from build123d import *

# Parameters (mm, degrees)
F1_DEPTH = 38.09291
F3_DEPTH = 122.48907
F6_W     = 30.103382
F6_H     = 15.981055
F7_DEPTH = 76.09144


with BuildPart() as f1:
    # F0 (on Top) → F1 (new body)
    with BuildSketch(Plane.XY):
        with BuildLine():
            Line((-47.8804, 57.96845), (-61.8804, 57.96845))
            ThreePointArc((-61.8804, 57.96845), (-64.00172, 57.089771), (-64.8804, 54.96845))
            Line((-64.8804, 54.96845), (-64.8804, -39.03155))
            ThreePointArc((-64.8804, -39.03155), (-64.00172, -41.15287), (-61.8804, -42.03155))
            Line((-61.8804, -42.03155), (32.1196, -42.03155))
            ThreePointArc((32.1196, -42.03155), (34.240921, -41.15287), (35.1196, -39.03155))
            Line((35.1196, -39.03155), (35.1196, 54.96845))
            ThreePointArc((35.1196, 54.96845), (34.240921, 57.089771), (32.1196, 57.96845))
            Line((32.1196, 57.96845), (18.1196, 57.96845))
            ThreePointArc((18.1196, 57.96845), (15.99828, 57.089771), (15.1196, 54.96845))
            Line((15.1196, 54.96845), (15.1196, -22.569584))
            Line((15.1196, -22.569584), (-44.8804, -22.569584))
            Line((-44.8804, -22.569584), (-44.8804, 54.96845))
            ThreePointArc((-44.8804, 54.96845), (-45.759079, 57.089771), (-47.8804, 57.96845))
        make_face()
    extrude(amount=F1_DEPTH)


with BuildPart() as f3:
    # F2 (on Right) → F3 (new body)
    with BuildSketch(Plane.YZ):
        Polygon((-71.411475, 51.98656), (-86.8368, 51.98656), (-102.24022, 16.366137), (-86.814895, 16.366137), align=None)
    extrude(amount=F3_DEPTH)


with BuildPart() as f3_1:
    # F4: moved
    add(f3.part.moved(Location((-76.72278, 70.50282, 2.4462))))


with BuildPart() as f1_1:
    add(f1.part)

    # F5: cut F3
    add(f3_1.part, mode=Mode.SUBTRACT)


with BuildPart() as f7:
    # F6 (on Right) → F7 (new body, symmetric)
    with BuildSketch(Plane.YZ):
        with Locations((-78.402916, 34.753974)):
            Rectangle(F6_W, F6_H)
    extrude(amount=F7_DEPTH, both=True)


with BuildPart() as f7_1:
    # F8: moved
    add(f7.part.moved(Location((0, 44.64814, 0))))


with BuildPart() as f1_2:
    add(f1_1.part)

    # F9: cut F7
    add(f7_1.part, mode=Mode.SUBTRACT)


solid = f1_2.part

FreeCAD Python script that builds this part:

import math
import FreeCAD as App
import Part
import Sketcher


def add_polygon(sketch, points):
    """Adds a closed chain of lines whose ends are joined by coincident constraints."""
    first, n = sketch.GeometryCount, len(points)
    for a, b in zip(points, points[1:] + points[:1]):
        sketch.addGeometry(Part.LineSegment(App.Vector(*a, 0), App.Vector(*b, 0)), False)
    for i in range(n):
        sketch.addConstraint(Sketcher.Constraint("Coincident", first + i, 2, first + (i + 1) % n, 1))

doc = App.newDocument("Part")
body = doc.addObject("PartDesign::Body", "Body")

sketch1 = body.newObject("Sketcher::SketchObject", "Sketch")
sketch1.AttachmentSupport = (doc.getObject("XY_Plane"), [""])
sketch1.MapMode = "FlatFace"
sketch1.addGeometry(Part.LineSegment(App.Vector(-47.9, 58, 0), App.Vector(-61.9, 58, 0)), False)
sketch1.addGeometry(Part.ArcOfCircle(Part.Circle(App.Vector(-61.9, 55, 0), App.Vector(0, 0, 1), 3), math.radians(90), math.radians(180)), False)
sketch1.addGeometry(Part.LineSegment(App.Vector(-64.9, 55, 0), App.Vector(-64.9, -39, 0)), False)
sketch1.addGeometry(Part.ArcOfCircle(Part.Circle(App.Vector(-61.9, -39, 0), App.Vector(0, 0, 1), 3), math.radians(-180), math.radians(-90)), False)
sketch1.addGeometry(Part.LineSegment(App.Vector(-61.9, -42, 0), App.Vector(32.1, -42, 0)), False)
sketch1.addGeometry(Part.ArcOfCircle(Part.Circle(App.Vector(32.1, -39, 0), App.Vector(0, 0, 1), 3), math.radians(-90), math.radians(0)), False)
sketch1.addGeometry(Part.LineSegment(App.Vector(35.1, -39, 0), App.Vector(35.1, 55, 0)), False)
sketch1.addGeometry(Part.ArcOfCircle(Part.Circle(App.Vector(32.1, 55, 0), App.Vector(0, 0, 1), 3), math.radians(0), math.radians(90)), False)
sketch1.addGeometry(Part.LineSegment(App.Vector(32.1, 58, 0), App.Vector(18.1, 58, 0)), False)
sketch1.addGeometry(Part.ArcOfCircle(Part.Circle(App.Vector(18.1, 55, 0), App.Vector(0, 0, 1), 3), math.radians(90), math.radians(180)), False)
sketch1.addGeometry(Part.LineSegment(App.Vector(15.1, 55, 0), App.Vector(15.1, -22.6, 0)), False)
sketch1.addGeometry(Part.LineSegment(App.Vector(15.1, -22.6, 0), App.Vector(-44.9, -22.6, 0)), False)
sketch1.addGeometry(Part.LineSegment(App.Vector(-44.9, -22.6, 0), App.Vector(-44.9, 55, 0)), False)
sketch1.addGeometry(Part.ArcOfCircle(Part.Circle(App.Vector(-47.9, 55, 0), App.Vector(0, 0, 1), 3), math.radians(0), math.radians(90)), False)
sketch1.addConstraint(Sketcher.Constraint("Tangent", 0, 2, 1, 1))
sketch1.addConstraint(Sketcher.Constraint("Tangent", 1, 2, 2, 1))
sketch1.addConstraint(Sketcher.Constraint("Tangent", 2, 2, 3, 1))
sketch1.addConstraint(Sketcher.Constraint("Tangent", 3, 2, 4, 1))
sketch1.addConstraint(Sketcher.Constraint("Tangent", 4, 2, 5, 1))
sketch1.addConstraint(Sketcher.Constraint("Tangent", 5, 2, 6, 1))
sketch1.addConstraint(Sketcher.Constraint("Tangent", 6, 2, 7, 1))
sketch1.addConstraint(Sketcher.Constraint("Tangent", 7, 2, 8, 1))
sketch1.addConstraint(Sketcher.Constraint("Tangent", 8, 2, 9, 1))
sketch1.addConstraint(Sketcher.Constraint("Tangent", 9, 2, 10, 1))
sketch1.addConstraint(Sketcher.Constraint("Coincident", 10, 2, 11, 1))
sketch1.addConstraint(Sketcher.Constraint("Coincident", 11, 2, 12, 1))
sketch1.addConstraint(Sketcher.Constraint("Tangent", 12, 2, 13, 1))
sketch1.addConstraint(Sketcher.Constraint("Tangent", 13, 2, 0, 1))
sketch1.addConstraint(Sketcher.Constraint("Horizontal", 0))
sketch1.addConstraint(Sketcher.Constraint("Vertical", 2))
sketch1.addConstraint(Sketcher.Constraint("Horizontal", 4))
sketch1.addConstraint(Sketcher.Constraint("Vertical", 6))
sketch1.addConstraint(Sketcher.Constraint("Horizontal", 8))
sketch1.addConstraint(Sketcher.Constraint("Vertical", 10))
sketch1.addConstraint(Sketcher.Constraint("Horizontal", 11))
sketch1.addConstraint(Sketcher.Constraint("Vertical", 12))
sketch1.addConstraint(Sketcher.Constraint("Equal", 1, 3))
sketch1.addConstraint(Sketcher.Constraint("Equal", 3, 5))
sketch1.addConstraint(Sketcher.Constraint("Equal", 5, 7))
sketch1.addConstraint(Sketcher.Constraint("Equal", 7, 9))
sketch1.addConstraint(Sketcher.Constraint("Equal", 9, 13))
sketch1.addConstraint(Sketcher.Constraint("Horizontal", 1, 3, 7, 3))
sketch1.addConstraint(Sketcher.Constraint("Equal", 0, 8))
sketch1.addConstraint(Sketcher.Constraint("Equal", 4, 2))
sketch1.addConstraint(Sketcher.Constraint("Radius", 1, 2.999999))
sketch1.addConstraint(Sketcher.Constraint("DistanceX", 0, 2, 0, 1, 14.0))
sketch1.addConstraint(Sketcher.Constraint("DistanceX", 4, 1, 4, 2, 94.0))
sketch1.addConstraint(Sketcher.Constraint("DistanceX", 1, 3, -1, 1, 61.880401))
sketch1.addConstraint(Sketcher.Constraint("DistanceY", 10, 2, 10, 1, 77.538034))
sketch1.addConstraint(Sketcher.Constraint("DistanceY", -1, 1, 1, 3, 54.968451))
pad1 = body.newObject("PartDesign::Pad", "Pad")
pad1.Profile = sketch1
pad1.Length = 38.09291
body2 = doc.addObject("PartDesign::Body", "Body001")

sketch2 = body2.newObject("Sketcher::SketchObject", "Sketch001")
sketch2.AttachmentSupport = (doc.getObject("YZ_Plane001"), [""])
sketch2.MapMode = "FlatFace"
add_polygon(sketch2, [(-71, 52), (-87, 52), (-102, 16), (-87, 16)])
sketch2.addConstraint(Sketcher.Constraint("Horizontal", 0))
sketch2.addConstraint(Sketcher.Constraint("Horizontal", 2))
sketch2.addConstraint(Sketcher.Constraint("Parallel", 1, 3))
sketch2.addConstraint(Sketcher.Constraint("DistanceX", 0, 2, -1, 1, 86.8368))
sketch2.addConstraint(Sketcher.Constraint("DistanceX", 0, 2, 0, 1, 15.425325))
sketch2.addConstraint(Sketcher.Constraint("DistanceY", -1, 1, 0, 2, 51.98656))
sketch2.addConstraint(Sketcher.Constraint("DistanceX", 1, 2, -1, 1, 102.24022))
sketch2.addConstraint(Sketcher.Constraint("Distance", 1, 38.808245))
pad2 = body2.newObject("PartDesign::Pad", "Pad001")
pad2.Profile = sketch2
pad2.Length = 122.48907
body3 = doc.addObject("PartDesign::Body", "Body002")
doc.recompute()

body2.Placement = App.Placement(App.Vector(-76.72278, 70.50282, 2.4462), App.Rotation(App.Vector(0, 0, 1), 0))
boolean = body3.newObject("PartDesign::Boolean", "Boolean")
boolean.Type = "Fuse"
boolean.addObjects([body2])
doc.recompute()

boolean2 = body.newObject("PartDesign::Boolean", "Boolean001")
boolean2.Type = "Cut"
boolean2.addObjects([body3])
body4 = doc.addObject("PartDesign::Body", "Body003")

sketch3 = body4.newObject("Sketcher::SketchObject", "Sketch002")
sketch3.AttachmentSupport = (doc.getObject("YZ_Plane003"), [""])
sketch3.MapMode = "FlatFace"
add_polygon(sketch3, [(-93, 43), (-93, 27), (-63, 27), (-63, 43)])
sketch3.addConstraint(Sketcher.Constraint("Vertical", 0))
sketch3.addConstraint(Sketcher.Constraint("Horizontal", 1))
sketch3.addConstraint(Sketcher.Constraint("Vertical", 2))
sketch3.addConstraint(Sketcher.Constraint("Horizontal", 3))
sketch3.addConstraint(Sketcher.Constraint("DistanceX", 1, 1, 1, 2, 30.103382))
sketch3.addConstraint(Sketcher.Constraint("DistanceY", -1, 1, 2, 2, 42.744501))
sketch3.addConstraint(Sketcher.Constraint("DistanceY", 0, 2, 0, 1, 15.981055))
sketch3.addConstraint(Sketcher.Constraint("DistanceX", 0, 2, -1, 1, 93.454607))
pad3 = body4.newObject("PartDesign::Pad", "Pad002")
pad3.Profile = sketch3
pad3.Length = 152.18288
pad3.Midplane = True
body5 = doc.addObject("PartDesign::Body", "Body004")
doc.recompute()

body4.Placement = App.Placement(App.Vector(0, 44.64814, 0), App.Rotation(App.Vector(0, 0, 1), 0))
boolean3 = body5.newObject("PartDesign::Boolean", "Boolean002")
boolean3.Type = "Fuse"
boolean3.addObjects([body4])
doc.recompute()

boolean4 = body.newObject("PartDesign::Boolean", "Boolean003")
boolean4.Type = "Cut"
boolean4.addObjects([body5])

doc.recompute()
